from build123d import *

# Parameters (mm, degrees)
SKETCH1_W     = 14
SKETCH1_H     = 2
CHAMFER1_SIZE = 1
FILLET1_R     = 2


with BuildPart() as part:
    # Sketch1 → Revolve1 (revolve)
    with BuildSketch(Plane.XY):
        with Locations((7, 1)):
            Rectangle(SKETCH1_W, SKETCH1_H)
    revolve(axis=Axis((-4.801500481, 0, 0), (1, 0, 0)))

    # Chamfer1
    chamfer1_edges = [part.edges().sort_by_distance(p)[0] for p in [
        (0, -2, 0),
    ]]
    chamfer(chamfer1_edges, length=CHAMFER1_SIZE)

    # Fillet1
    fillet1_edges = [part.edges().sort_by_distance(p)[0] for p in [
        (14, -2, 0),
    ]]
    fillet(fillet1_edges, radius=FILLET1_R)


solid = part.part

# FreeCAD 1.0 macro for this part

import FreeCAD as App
import Part
import Sketcher
from FreeCAD import Vector
Q = App.Units.Quantity


def edges_at(feature, points):
    """Names of the edges that pass closest to the given points."""
    edges = feature.Shape.Edges
    near = lambda p: min(range(len(edges)), key=lambda i: edges[i].distToShape(Part.Vertex(*p))[0])
    return sorted({f"Edge{near(p) + 1}" for p in points})


def add_polygon(sketch, points):
    """Adds a closed chain of lines whose ends are joined by coincident constraints."""
    first, n = sketch.GeometryCount, len(points)
    for a, b in zip(points, points[1:] + points[:1]):
        sketch.addGeometry(Part.LineSegment(App.Vector(*a, 0), App.Vector(*b, 0)), False)
    for i in range(n):
        sketch.addConstraint(Sketcher.Constraint("Coincident", first + i, 2, first + (i + 1) % n, 1))

doc = App.newDocument("Part")
params = doc.addObject("Spreadsheet::Sheet", "Params")
for row, (alias, value) in enumerate([
    ("sketch1_width", "14 mm"),
    ("sketch1_height", "2 mm"),
    ("revolution_angle", "360 deg"),
    ("chamfer_size", "1 mm"),
    ("fillet_radius", "2 mm"),
], start=1):
    params.set(f"A{row}", alias)
    params.set(f"B{row}", "=" + value)
    params.setAlias(f"B{row}", alias)

body = doc.addObject("PartDesign::Body", "Body")

# Sketch on XY plane
sketch1 = body.newObject("Sketcher::SketchObject", "Sketch")
sketch1.AttachmentSupport = (doc.getObject("XY_Plane"), [""])
sketch1.MapMode = "FlatFace"
add_polygon(sketch1, [(0, 2), (0, 0), (14, 0), (14, 2)])  # lines 0-3
sketch1.addConstraint([
    Sketcher.Constraint("Vertical", 0),
    Sketcher.Constraint("Horizontal", 1),
    Sketcher.Constraint("Vertical", 2),
    Sketcher.Constraint("Horizontal", 3),
    Sketcher.Constraint("Coincident", 0, 2, -1, 1),
    Sketcher.Constraint("DistanceX", 1, 1, 1, 2, Q("14 mm")),
    Sketcher.Constraint("DistanceY", 0, 2, 0, 1, Q("2 mm")),
])
sketch1.setExpression("Constraints[9]", "Params.sketch1_width")
sketch1.setExpression("Constraints[10]", "Params.sketch1_height")
revolution = body.newObject("PartDesign::Revolution", "Revolution")
revolution.Profile = sketch1
revolution.ReferenceAxis = (sketch1, ["H_Axis"])
revolution.setExpression("Angle", "Params.revolution_angle")
doc.recompute()

chamfer = body.newObject("PartDesign::Chamfer", "Chamfer")
chamfer.Base = (revolution, edges_at(revolution, [(0, -2, 0)]))
chamfer.setExpression("Size", "Params.chamfer_size")
doc.recompute()

fillet = body.newObject("PartDesign::Fillet", "Fillet")
fillet.Base = (chamfer, edges_at(chamfer, [(14, -2, 0)]))
fillet.setExpression("Radius", "Params.fillet_radius")

doc.recompute()
